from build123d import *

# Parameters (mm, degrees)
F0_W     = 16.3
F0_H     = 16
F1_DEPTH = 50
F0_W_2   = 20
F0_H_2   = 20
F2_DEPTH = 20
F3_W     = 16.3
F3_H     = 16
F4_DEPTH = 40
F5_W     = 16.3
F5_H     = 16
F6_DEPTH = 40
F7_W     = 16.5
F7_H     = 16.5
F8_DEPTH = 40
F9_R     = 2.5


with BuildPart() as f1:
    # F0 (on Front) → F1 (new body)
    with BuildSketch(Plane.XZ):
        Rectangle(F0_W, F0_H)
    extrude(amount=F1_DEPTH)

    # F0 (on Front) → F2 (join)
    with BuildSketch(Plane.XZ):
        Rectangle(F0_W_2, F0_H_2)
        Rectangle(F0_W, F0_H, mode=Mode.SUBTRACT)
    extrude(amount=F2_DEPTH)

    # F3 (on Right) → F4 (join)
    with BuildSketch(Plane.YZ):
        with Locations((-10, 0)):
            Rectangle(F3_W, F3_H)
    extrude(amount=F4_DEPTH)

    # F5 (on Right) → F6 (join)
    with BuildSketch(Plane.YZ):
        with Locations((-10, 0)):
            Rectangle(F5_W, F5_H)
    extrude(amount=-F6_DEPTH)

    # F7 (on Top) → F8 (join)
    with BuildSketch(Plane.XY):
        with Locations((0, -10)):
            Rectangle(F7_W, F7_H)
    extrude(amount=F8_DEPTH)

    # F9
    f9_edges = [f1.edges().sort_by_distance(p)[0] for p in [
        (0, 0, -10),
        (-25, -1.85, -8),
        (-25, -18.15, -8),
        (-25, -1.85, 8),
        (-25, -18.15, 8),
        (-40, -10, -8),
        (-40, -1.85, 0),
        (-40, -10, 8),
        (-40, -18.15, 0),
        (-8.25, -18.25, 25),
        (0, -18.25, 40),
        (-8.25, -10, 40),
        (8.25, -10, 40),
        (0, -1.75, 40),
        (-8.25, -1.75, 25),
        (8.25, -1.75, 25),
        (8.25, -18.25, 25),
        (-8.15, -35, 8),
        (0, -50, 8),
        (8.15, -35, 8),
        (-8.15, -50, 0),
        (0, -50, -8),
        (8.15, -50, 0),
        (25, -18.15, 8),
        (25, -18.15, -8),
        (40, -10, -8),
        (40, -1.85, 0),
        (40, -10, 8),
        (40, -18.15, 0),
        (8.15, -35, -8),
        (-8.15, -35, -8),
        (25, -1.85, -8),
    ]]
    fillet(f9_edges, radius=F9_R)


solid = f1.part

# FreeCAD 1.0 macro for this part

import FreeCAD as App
import Part
import Sketcher

V = App.Vector
Q = App.Units.Quantity


def edges_at(feature, points):
    """Names of the edges that pass closest to the given points."""
    edges = feature.Shape.Edges
    near = lambda p: min(range(len(edges)), key=lambda i: edges[i].distToShape(Part.Vertex(*p))[0])
    return sorted({f"Edge{near(p) + 1}" for p in points})

doc = App.newDocument("Part")
params = doc.addObject("Spreadsheet::Sheet", "Params")
for row, (alias, value) in enumerate([
    ("sketch1_height", "16 mm"),
    ("sketch1_width", "16.3 mm"),
    ("pad1_length", "50 mm"),
    ("sketch2_width", "20 mm"),
    ("sketch2_height", "16 mm"),
    ("sketch2_width2", "16.3 mm"),
    ("pad2_length", "20 mm"),
    ("sketch3_height", "16 mm"),
    ("sketch3_width", "16.3 mm"),
    ("pad3_length", "40 mm"),
    ("sketch4_height", "16 mm"),
    ("sketch4_width", "16.3 mm"),
    ("pad4_length", "40 mm"),
    ("sketch5_width", "16.5 mm"),
    ("pad5_length", "40 mm"),
    ("fillet_radius", "2.5 mm"),
], start=1):
    params.set(f"A{row}", alias)
    params.set(f"B{row}", "=" + value)
    params.setAlias(f"B{row}", alias)

body = doc.addObject("PartDesign::Body", "Body")

# Sketch on XZ plane
sketch1 = body.newObject("Sketcher::SketchObject", "Sketch")
sketch1.AttachmentSupport = (doc.getObject("XZ_Plane"), [""])
sketch1.MapMode = "FlatFace"
sketch1.addGeometry([
    Part.LineSegment(V(-8, 8, 0), V(-8, -8, 0)),
    Part.LineSegment(V(-8, -8, 0), V(8, -8, 0)),
    Part.LineSegment(V(8, -8, 0), V(8, 8, 0)),
    Part.LineSegment(V(8, 8, 0), V(-8, 8, 0)),
], False)
sketch1.addConstraint([
    Sketcher.Constraint("Coincident", 0, 2, 1, 1),
    Sketcher.Constraint("Coincident", 1, 2, 2, 1),
    Sketcher.Constraint("Coincident", 2, 2, 3, 1),
    Sketcher.Constraint("Coincident", 3, 2, 0, 1),
    Sketcher.Constraint("Vertical", 0),
    Sketcher.Constraint("Horizontal", 1),
    Sketcher.Constraint("Vertical", 2),
    Sketcher.Constraint("Horizontal", 3),
    Sketcher.Constraint("Symmetric", 0, 2, 2, 2, -1, 1),
    Sketcher.Constraint("DistanceY", 0, 2, 0, 1, Q("16 mm")),
    Sketcher.Constraint("DistanceX", 1, 1, 1, 2, Q("16.3 mm")),
])
sketch1.setExpression("Constraints[9]", "Params.sketch1_height")
sketch1.setExpression("Constraints[10]", "Params.sketch1_width")
pad1 = body.newObject("PartDesign::Pad", "Pad")
pad1.Profile = sketch1
pad1.setExpression("Length", "Params.pad1_length")

# Sketch on XZ plane
sketch2 = body.newObject("Sketcher::SketchObject", "Sketch001")
sketch2.AttachmentSupport = (doc.getObject("XZ_Plane"), [""])
sketch2.MapMode = "FlatFace"
sketch2.addGeometry([
    Part.LineSegment(V(-10, 10, 0), V(-10, -10, 0)),  # 0
    Part.LineSegment(V(-10, -10, 0), V(10, -10, 0)),  # 1
    Part.LineSegment(V(10, -10, 0), V(10, 10, 0)),  # 2
    Part.LineSegment(V(10, 10, 0), V(-10, 10, 0)),  # 3
    Part.LineSegment(V(8, -8, 0), V(-8, -8, 0)),  # 4
    Part.LineSegment(V(-8, -8, 0), V(-8, 8, 0)),  # 5
    Part.LineSegment(V(-8, 8, 0), V(8, 8, 0)),  # 6
    Part.LineSegment(V(8, 8, 0), V(8, -8, 0)),  # 7
], False)
sketch2.addConstraint([
    Sketcher.Constraint("Coincident", 0, 2, 1, 1),
    Sketcher.Constraint("Coincident", 1, 2, 2, 1),
    Sketcher.Constraint("Coincident", 2, 2, 3, 1),
    Sketcher.Constraint("Coincident", 3, 2, 0, 1),
    Sketcher.Constraint("Coincident", 4, 2, 5, 1),
    Sketcher.Constraint("Coincident", 5, 2, 6, 1),
    Sketcher.Constraint("Coincident", 6, 2, 7, 1),
    Sketcher.Constraint("Coincident", 7, 2, 4, 1),
    Sketcher.Constraint("Vertical", 0),
    Sketcher.Constraint("Horizontal", 1),
    Sketcher.Constraint("Vertical", 2),
    Sketcher.Constraint("Horizontal", 3),
    Sketcher.Constraint("Horizontal", 4),
    Sketcher.Constraint("Vertical", 5),
    Sketcher.Constraint("Horizontal", 6),
    Sketcher.Constraint("Vertical", 7),
    Sketcher.Constraint("Symmetric", 0, 2, 2, 2, -1, 1),
    Sketcher.Constraint("Symmetric", 4, 2, 6, 2, -1, 1),
    Sketcher.Constraint("Equal", 3, 0),
    Sketcher.Constraint("DistanceX", 1, 1, 1, 2, Q("20 mm")),
    Sketcher.Constraint("DistanceY", 5, 1, 5, 2, Q("16 mm")),
    Sketcher.Constraint("DistanceX", 4, 2, 4, 1, Q("16.3 mm")),
])
sketch2.setExpression("Constraints[19]", "Params.sketch2_width")
sketch2.setExpression("Constraints[20]", "Params.sketch2_height")
sketch2.setExpression("Constraints[21]", "Params.sketch2_width2")
pad2 = body.newObject("PartDesign::Pad", "Pad001")
pad2.Profile = sketch2
pad2.setExpression("Length", "Params.pad2_length")

# Sketch on YZ plane
sketch3 = body.newObject("Sketcher::SketchObject", "Sketch002")
sketch3.AttachmentSupport = (doc.getObject("YZ_Plane"), [""])
sketch3.MapMode = "FlatFace"
sketch3.addGeometry([
    Part.LineSegment(V(-18, 8, 0), V(-18, -8, 0)),
    Part.LineSegment(V(-18, -8, 0), V(-2, -8, 0)),
    Part.LineSegment(V(-2, -8, 0), V(-2, 8, 0)),
    Part.LineSegment(V(-2, 8, 0), V(-18, 8, 0)),
], False)
sketch3.addConstraint([
    Sketcher.Constraint("Coincident", 0, 2, 1, 1),
    Sketcher.Constraint("Coincident", 1, 2, 2, 1),
    Sketcher.Constraint("Coincident", 2, 2, 3, 1),
    Sketcher.Constraint("Coincident", 3, 2, 0, 1),
    Sketcher.Constraint("Vertical", 0),
    Sketcher.Constraint("Horizontal", 1),
    Sketcher.Constraint("Vertical", 2),
    Sketcher.Constraint("Horizontal", 3),
    Sketcher.Constraint("DistanceY", 0, 2, 0, 1, Q("16 mm")),
    Sketcher.Constraint("DistanceX", 1, 1, 1, 2, Q("16.3 mm")),
    Sketcher.Constraint("DistanceY", 0, 2, -1, 1, Q("8 mm")),
    Sketcher.Constraint("DistanceX", 0, 2, -1, 1, Q("18.15 mm")),
])
sketch3.setExpression("Constraints[8]", "Params.sketch3_height")
sketch3.setExpression("Constraints[9]", "Params.sketch3_width")
pad3 = body.newObject("PartDesign::Pad", "Pad002")
pad3.Profile = sketch3
pad3.setExpression("Length", "Params.pad3_length")

# Sketch on YZ plane
sketch4 = body.newObject("Sketcher::SketchObject", "Sketch003")
sketch4.AttachmentSupport = (doc.getObject("YZ_Plane"), [""])
sketch4.MapMode = "FlatFace"
sketch4.addGeometry([
    Part.LineSegment(V(-18, 8, 0), V(-18, -8, 0)),
    Part.LineSegment(V(-18, -8, 0), V(-2, -8, 0)),
    Part.LineSegment(V(-2, -8, 0), V(-2, 8, 0)),
    Part.LineSegment(V(-2, 8, 0), V(-18, 8, 0)),
], False)
sketch4.addConstraint([
    Sketcher.Constraint("Coincident", 0, 2, 1, 1),
    Sketcher.Constraint("Coincident", 1, 2, 2, 1),
    Sketcher.Constraint("Coincident", 2, 2, 3, 1),
    Sketcher.Constraint("Coincident", 3, 2, 0, 1),
    Sketcher.Constraint("Vertical", 0),
    Sketcher.Constraint("Horizontal", 1),
    Sketcher.Constraint("Vertical", 2),
    Sketcher.Constraint("Horizontal", 3),
    Sketcher.Constraint("DistanceY", 0, 2, 0, 1, Q("16 mm")),
    Sketcher.Constraint("DistanceX", 1, 1, 1, 2, Q("16.3 mm")),
    Sketcher.Constraint("DistanceY", 0, 2, -1, 1, Q("8 mm")),
    Sketcher.Constraint("DistanceX", 0, 2, -1, 1, Q("18.15 mm")),
])
sketch4.setExpression("Constraints[8]", "Params.sketch4_height")
sketch4.setExpression("Constraints[9]", "Params.sketch4_width")
pad4 = body.newObject("PartDesign::Pad", "Pad003")
pad4.Profile = sketch4
pad4.setExpression("Length", "Params.pad4_length")
pad4.Reversed = True

# Sketch on XY plane
sketch5 = body.newObject("Sketcher::SketchObject", "Sketch004")
sketch5.AttachmentSupport = (doc.getObject("XY_Plane"), [""])
sketch5.MapMode = "FlatFace"
sketch5.addGeometry([
    Part.LineSegment(V(-8, -2, 0), V(-8, -18, 0)),
    Part.LineSegment(V(-8, -18, 0), V(8, -18, 0)),
    Part.LineSegment(V(8, -18, 0), V(8, -2, 0)),
    Part.LineSegment(V(8, -2, 0), V(-8, -2, 0)),
], False)
sketch5.addConstraint([
    Sketcher.Constraint("Coincident", 0, 2, 1, 1),
    Sketcher.Constraint("Coincident", 1, 2, 2, 1),
    Sketcher.Constraint("Coincident", 2, 2, 3, 1),
    Sketcher.Constraint("Coincident", 3, 2, 0, 1),
    Sketcher.Constraint("Vertical", 0),
    Sketcher.Constraint("Horizontal", 1),
    Sketcher.Constraint("Vertical", 2),
    Sketcher.Constraint("Horizontal", 3),
    Sketcher.Constraint("Equal", 3, 0),
    Sketcher.Constraint("DistanceX", 1, 1, 1, 2, Q("16.5 mm")),
    Sketcher.Constraint("DistanceX", 0, 2, -1, 1, Q("8.25 mm")),
    Sketcher.Constraint("DistanceY", 0, 2, -1, 1, Q("18.25 mm")),
])
sketch5.setExpression("Constraints[9]", "Params.sketch5_width")
pad5 = body.newObject("PartDesign::Pad", "Pad004")
pad5.Profile = sketch5
pad5.setExpression("Length", "Params.pad5_length")
doc.recompute()

fillet = body.newObject("PartDesign::Fillet", "Fillet")
fillet.Base = (pad5, edges_at(pad5, [
    (0, 0, -10),
    (-25, -1.85, -8),
    (-25, -18.15, -8),
    (-25, -1.85, 8),
    (-25, -18.15, 8),
    (-40, -10, -8),
    (-40, -1.85, 0),
    (-40, -10, 8),
    (-40, -18.15, 0),
    (-8.25, -18.25, 25),
    (0, -18.25, 40),
    (-8.25, -10, 40),
    (8.25, -10, 40),
    (0, -1.75, 40),
    (-8.25, -1.75, 25),
    (8.25, -1.75, 25),
    (8.25, -18.25, 25),
    (-8.15, -35, 8),
    (0, -50, 8),
    (8.15, -35, 8),
    (-8.15, -50, 0),
    (0, -50, -8),
    (8.15, -50, 0),
    (25, -18.15, 8),
    (25, -18.15, -8),
    (40, -10, -8),
    (40, -1.85, 0),
    (40, -10, 8),
    (40, -18.15, 0),
    (8.15, -35, -8),
    (-8.15, -35, -8),
    (25, -1.85, -8),
]))
fillet.setExpression("Radius", "Params.fillet_radius")

doc.recompute()
